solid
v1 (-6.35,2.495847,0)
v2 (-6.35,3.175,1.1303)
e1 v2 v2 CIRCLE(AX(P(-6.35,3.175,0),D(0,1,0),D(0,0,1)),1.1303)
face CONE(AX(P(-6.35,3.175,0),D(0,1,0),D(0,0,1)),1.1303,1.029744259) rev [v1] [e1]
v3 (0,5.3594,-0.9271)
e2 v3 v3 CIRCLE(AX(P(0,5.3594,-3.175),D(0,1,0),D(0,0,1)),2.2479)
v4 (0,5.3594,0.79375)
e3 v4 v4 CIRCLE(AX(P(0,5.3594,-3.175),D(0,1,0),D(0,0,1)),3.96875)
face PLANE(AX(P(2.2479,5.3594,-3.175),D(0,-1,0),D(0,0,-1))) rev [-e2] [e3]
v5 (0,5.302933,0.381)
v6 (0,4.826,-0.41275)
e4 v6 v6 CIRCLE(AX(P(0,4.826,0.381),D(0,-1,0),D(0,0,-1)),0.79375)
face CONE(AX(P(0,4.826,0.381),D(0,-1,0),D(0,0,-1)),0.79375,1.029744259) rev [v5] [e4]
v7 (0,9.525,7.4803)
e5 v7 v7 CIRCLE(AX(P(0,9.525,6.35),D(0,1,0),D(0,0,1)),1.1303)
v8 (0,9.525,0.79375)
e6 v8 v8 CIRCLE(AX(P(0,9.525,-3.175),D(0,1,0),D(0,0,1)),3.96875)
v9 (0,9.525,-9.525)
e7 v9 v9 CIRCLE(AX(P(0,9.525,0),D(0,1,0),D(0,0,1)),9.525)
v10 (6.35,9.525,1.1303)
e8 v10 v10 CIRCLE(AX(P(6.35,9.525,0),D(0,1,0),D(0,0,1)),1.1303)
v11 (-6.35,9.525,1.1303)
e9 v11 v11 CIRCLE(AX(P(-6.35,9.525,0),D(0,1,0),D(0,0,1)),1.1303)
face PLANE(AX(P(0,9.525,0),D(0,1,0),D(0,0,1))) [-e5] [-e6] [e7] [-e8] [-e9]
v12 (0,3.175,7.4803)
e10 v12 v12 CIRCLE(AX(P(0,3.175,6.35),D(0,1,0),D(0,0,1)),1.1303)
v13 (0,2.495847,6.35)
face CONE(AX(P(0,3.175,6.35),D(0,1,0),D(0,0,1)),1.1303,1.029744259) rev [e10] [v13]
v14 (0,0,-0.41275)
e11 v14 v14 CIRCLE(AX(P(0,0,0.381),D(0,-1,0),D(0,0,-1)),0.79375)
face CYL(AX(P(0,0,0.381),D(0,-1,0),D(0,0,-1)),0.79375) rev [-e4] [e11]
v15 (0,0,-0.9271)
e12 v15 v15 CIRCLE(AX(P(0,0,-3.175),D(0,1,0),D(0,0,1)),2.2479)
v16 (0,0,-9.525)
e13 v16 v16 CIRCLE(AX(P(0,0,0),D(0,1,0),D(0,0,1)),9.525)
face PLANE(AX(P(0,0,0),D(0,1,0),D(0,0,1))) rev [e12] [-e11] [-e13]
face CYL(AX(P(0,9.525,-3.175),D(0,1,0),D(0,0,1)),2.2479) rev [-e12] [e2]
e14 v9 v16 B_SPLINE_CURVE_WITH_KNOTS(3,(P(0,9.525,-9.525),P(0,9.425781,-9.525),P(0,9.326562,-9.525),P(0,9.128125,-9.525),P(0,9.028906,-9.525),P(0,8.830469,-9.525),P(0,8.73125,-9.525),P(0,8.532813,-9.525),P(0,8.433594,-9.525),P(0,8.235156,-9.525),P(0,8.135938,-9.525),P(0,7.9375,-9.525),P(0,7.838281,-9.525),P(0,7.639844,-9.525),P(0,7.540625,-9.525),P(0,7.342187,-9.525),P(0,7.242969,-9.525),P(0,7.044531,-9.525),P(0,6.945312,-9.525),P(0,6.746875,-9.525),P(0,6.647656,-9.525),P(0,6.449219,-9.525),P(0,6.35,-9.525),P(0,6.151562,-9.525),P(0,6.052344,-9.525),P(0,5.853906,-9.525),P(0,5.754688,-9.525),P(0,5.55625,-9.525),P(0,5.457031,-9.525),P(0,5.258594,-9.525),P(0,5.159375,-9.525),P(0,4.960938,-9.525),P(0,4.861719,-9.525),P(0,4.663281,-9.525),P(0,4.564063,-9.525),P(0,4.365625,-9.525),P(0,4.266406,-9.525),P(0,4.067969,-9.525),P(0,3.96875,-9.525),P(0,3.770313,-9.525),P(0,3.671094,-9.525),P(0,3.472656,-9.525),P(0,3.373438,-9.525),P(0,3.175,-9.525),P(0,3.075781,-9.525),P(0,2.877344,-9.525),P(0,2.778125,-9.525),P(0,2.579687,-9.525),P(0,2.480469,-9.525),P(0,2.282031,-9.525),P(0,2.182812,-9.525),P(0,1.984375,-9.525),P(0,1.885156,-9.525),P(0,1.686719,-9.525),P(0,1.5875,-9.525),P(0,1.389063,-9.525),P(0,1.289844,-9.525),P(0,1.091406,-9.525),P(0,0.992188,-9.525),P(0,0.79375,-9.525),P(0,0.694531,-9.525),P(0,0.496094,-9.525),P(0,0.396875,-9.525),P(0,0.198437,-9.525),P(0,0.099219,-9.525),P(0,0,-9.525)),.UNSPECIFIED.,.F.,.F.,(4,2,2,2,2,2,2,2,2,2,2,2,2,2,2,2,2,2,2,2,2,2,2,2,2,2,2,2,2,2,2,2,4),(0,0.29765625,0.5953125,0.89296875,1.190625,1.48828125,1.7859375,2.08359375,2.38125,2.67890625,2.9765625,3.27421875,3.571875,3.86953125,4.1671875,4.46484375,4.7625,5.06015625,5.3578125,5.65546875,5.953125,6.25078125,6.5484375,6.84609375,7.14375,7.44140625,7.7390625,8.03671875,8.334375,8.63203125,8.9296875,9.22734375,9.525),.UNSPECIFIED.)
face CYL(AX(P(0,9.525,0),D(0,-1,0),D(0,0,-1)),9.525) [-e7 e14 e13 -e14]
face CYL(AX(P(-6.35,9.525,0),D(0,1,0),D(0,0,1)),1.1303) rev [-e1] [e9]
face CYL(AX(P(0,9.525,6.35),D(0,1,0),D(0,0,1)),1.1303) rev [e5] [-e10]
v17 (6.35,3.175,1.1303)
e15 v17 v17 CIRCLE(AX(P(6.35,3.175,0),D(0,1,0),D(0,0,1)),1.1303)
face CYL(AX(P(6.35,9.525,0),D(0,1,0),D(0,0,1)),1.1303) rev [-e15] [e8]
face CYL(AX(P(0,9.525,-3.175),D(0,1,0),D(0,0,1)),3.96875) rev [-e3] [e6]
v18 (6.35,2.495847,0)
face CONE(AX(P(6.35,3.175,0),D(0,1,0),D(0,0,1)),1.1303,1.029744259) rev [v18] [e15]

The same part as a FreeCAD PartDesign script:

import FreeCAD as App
import Part
import Sketcher
Q = App.Units.Quantity

doc = App.newDocument("Part")
body = doc.addObject("PartDesign::Body", "Body")

sketch1 = body.newObject("Sketcher::SketchObject", "Sketch")
sketch1.AttachmentSupport = (doc.getObject("XZ_Plane"), [""])
sketch1.MapMode = "FlatFace"
sketch1.addGeometry(Part.Circle(App.Vector(0, 0, 0), App.Vector(0, 0, 1), 10), False)
sketch1.addConstraint([
    Sketcher.Constraint("Coincident", 0, 3, -1, 1),
    Sketcher.Constraint("Diameter", 0, Q("0.75 in")),
])
pad1 = body.newObject("PartDesign::Pad", "Pad")
pad1.Profile = sketch1
pad1.Length = Q("0.375 in")
pad1.Reversed = True

sketch2 = body.newObject("Sketcher::SketchObject", "Sketch001")
sketch2.AttachmentSupport = (doc.getObject("XZ_Plane"), [""])
sketch2.MapMode = "FlatFace"
sketch2.AttachmentOffset = App.Placement(App.Vector(0, 0, -0.375 * 25.4), App.Rotation())
sketch2.addGeometry(Part.Circle(App.Vector(0, -3.2, 0), App.Vector(0, 0, 1), 2.2), False)
sketch2.addConstraint([
    Sketcher.Constraint("PointOnObject", 0, 3, -2),
    Sketcher.Constraint("Diameter", 0, Q("0.177 in")),
    Sketcher.Constraint("DistanceY", 0, 3, -1, 1, Q("0.125 in")),
])
doc.recompute()
hole = body.newObject("PartDesign::Hole", "Hole")
hole.Profile = sketch2
hole.ThreadType = "None"
hole.Diameter = Q("0.177 in")
hole.DepthType = "ThroughAll"
hole.HoleCutType = "Counterbore"
hole.HoleCutDiameter = Q("0.3125 in")
hole.HoleCutDepth = Q("0.164 in")
hole.Reversed = True

sketch3 = body.newObject("Sketcher::SketchObject", "Sketch002")
sketch3.AttachmentSupport = (doc.getObject("XZ_Plane"), [""])
sketch3.MapMode = "FlatFace"
sketch3.addGeometry(Part.Circle(App.Vector(0, 0.4, 0), App.Vector(0, 0, 1), 0.8), False)
sketch3.addConstraint([
    Sketcher.Constraint("PointOnObject", 0, 3, -2),
    Sketcher.Constraint("Diameter", 0, Q("0.0625 in")),
    Sketcher.Constraint("DistanceY", -1, 1, 0, 3, Q("0.015 in")),
])
doc.recompute()
hole2 = body.newObject("PartDesign::Hole", "Hole001")
hole2.Profile = sketch3
hole2.ThreadType = "None"
hole2.Diameter = Q("0.0625 in")
hole2.DepthType = "Dimension"
hole2.Depth = Q("0.19 in")
hole2.DrillPoint = "Angled"
hole2.DrillPointAngle = 118

sketch4 = body.newObject("Sketcher::SketchObject", "Sketch003")
sketch4.AttachmentSupport = (doc.getObject("XZ_Plane"), [""])
sketch4.MapMode = "FlatFace"
sketch4.AttachmentOffset = App.Placement(App.Vector(0, 0, -0.375 * 25.4), App.Rotation())
sketch4.addGeometry([
    Part.Circle(App.Vector(-6.3, 0, 0), App.Vector(0, 0, 1), 1.1),
    Part.Circle(App.Vector(6.3, 0, 0), App.Vector(0, 0, 1), 1.1),
    Part.Circle(App.Vector(0, 6.3, 0), App.Vector(0, 0, 1), 1.1),
], False)
sketch4.addConstraint([
    Sketcher.Constraint("Equal", 0, 1),
    Sketcher.Constraint("Equal", 1, 2),
    Sketcher.Constraint("Symmetric", 0, 3, 1, 3, -1, 1),
    Sketcher.Constraint("PointOnObject", 0, 3, -1),
    Sketcher.Constraint("PointOnObject", 2, 3, -2),
    Sketcher.Constraint("Diameter", 0, Q("0.089 in")),
    Sketcher.Constraint("DistanceX", 0, 3, 1, 3, Q("0.5 in")),
    Sketcher.Constraint("DistanceY", -1, 1, 2, 3, Q("0.25 in")),
])
doc.recompute()
hole3 = body.newObject("PartDesign::Hole", "Hole002")
hole3.Profile = sketch4
hole3.ThreadType = "None"
hole3.Diameter = Q("0.089 in")
hole3.DepthType = "Dimension"
hole3.Depth = Q("0.25 in")
hole3.DrillPoint = "Angled"
hole3.DrillPointAngle = 118
hole3.Reversed = True

doc.recompute()
